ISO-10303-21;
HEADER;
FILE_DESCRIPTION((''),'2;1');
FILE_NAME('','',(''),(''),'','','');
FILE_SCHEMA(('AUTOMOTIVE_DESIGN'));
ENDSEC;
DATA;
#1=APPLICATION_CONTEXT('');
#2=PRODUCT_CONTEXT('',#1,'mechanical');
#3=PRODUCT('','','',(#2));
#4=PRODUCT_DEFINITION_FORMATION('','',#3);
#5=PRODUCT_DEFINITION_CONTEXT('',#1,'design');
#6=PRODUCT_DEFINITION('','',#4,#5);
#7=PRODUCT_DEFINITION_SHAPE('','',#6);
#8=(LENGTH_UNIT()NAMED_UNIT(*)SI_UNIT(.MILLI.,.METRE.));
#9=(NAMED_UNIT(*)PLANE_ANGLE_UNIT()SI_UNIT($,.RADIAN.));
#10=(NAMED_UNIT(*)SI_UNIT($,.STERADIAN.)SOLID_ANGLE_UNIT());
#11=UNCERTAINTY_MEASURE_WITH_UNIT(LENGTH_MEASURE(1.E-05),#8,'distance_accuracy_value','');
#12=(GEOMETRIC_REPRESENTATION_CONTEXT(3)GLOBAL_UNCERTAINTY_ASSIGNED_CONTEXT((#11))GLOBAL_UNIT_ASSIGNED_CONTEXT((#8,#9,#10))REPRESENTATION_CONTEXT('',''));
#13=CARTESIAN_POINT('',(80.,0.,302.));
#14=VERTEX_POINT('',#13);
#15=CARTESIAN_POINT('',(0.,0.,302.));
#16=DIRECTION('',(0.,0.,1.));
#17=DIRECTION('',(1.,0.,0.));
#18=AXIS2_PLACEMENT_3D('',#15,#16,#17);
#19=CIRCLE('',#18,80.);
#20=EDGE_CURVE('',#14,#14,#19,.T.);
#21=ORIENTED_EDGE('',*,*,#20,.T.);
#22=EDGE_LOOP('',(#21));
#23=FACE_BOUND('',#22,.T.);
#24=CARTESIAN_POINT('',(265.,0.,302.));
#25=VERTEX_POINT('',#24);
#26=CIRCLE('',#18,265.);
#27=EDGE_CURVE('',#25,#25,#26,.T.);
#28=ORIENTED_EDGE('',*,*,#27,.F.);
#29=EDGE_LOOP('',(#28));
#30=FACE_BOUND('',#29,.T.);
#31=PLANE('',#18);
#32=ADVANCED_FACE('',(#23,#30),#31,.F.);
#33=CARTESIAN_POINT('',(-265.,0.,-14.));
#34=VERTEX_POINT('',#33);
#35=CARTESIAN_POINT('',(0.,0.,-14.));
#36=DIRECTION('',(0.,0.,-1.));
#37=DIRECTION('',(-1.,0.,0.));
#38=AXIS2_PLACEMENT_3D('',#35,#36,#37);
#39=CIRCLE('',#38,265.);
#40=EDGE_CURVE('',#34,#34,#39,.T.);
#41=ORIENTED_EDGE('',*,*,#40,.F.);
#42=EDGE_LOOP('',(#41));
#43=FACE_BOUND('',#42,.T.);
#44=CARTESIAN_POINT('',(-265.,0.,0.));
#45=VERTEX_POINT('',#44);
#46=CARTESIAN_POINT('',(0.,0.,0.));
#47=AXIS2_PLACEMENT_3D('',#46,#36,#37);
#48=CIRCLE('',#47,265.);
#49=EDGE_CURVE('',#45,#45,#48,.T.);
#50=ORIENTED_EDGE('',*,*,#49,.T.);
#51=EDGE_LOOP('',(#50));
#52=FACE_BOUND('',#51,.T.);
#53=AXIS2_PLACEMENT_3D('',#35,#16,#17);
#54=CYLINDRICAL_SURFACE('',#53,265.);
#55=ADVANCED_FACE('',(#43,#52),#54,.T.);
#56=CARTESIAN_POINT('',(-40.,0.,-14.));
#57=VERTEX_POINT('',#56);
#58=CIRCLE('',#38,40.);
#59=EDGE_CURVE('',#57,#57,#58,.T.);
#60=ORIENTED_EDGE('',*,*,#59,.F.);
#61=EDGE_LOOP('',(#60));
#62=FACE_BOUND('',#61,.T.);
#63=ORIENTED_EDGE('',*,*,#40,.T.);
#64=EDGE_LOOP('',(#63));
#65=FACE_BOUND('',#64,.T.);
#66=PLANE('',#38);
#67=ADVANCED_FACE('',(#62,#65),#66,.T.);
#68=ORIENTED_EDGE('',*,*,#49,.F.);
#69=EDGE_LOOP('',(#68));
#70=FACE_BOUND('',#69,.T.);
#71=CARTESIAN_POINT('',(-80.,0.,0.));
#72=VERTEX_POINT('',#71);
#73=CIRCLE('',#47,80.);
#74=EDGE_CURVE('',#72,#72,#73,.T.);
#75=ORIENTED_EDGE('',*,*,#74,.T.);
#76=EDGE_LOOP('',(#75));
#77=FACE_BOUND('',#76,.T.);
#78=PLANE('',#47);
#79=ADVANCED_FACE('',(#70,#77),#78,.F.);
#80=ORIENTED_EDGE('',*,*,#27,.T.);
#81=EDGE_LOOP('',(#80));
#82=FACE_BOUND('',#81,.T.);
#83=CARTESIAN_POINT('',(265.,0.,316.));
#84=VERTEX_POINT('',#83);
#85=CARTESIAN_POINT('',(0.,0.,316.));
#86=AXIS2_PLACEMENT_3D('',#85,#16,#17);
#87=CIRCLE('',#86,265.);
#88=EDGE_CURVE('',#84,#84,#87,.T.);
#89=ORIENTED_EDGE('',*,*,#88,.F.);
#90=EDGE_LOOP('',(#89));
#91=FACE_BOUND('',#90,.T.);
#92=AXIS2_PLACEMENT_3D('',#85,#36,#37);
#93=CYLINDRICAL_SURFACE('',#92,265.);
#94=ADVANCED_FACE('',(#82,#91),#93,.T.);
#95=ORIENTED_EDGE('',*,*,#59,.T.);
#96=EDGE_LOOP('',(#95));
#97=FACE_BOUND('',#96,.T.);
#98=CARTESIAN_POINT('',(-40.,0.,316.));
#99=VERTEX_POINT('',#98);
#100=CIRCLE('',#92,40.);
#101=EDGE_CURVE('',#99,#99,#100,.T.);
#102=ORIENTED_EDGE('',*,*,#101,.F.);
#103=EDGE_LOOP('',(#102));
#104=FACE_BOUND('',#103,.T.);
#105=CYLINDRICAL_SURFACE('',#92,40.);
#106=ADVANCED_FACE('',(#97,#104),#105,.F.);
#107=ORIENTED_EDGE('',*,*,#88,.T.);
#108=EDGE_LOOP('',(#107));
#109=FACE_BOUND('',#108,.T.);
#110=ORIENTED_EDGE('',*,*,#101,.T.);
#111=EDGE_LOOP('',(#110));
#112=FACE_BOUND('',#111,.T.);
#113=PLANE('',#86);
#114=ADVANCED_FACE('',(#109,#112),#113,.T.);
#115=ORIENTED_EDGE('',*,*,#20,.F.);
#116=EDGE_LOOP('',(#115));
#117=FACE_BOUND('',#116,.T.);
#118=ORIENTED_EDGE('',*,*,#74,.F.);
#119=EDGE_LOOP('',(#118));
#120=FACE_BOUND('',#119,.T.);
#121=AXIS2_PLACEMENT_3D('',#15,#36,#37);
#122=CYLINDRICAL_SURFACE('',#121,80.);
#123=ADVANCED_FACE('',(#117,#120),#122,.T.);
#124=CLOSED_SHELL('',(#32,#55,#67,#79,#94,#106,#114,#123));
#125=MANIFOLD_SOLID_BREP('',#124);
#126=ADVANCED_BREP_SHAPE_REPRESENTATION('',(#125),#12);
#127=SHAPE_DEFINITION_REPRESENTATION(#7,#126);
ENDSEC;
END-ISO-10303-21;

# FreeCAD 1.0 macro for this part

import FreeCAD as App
import Part
import Sketcher
from FreeCAD import Vector
Q = App.Units.Quantity

doc = App.newDocument("Part")
body = doc.addObject("PartDesign::Body", "Body")

# Sketch on XY plane
sketch1 = body.newObject("Sketcher::SketchObject", "Sketch")
sketch1.AttachmentSupport = (doc.getObject("XY_Plane"), [""])
sketch1.MapMode = "FlatFace"
sketch1.addGeometry(Part.Circle(Vector(0, 0, 0), Vector(0, 0, 1), 80), False)
sketch1.addConstraint([
    Sketcher.Constraint("Coincident", 0, 3, -1, 1),
    Sketcher.Constraint("Diameter", 0, Q("160 mm")),
])
pad1 = body.newObject("PartDesign::Pad", "Pad")
pad1.Profile = sketch1
pad1.Length = 302

# Sketch on XY plane
sketch2 = body.newObject("Sketcher::SketchObject", "Sketch001")
sketch2.AttachmentSupport = (doc.getObject("XY_Plane"), [""])
sketch2.MapMode = "FlatFace"
sketch2.addGeometry(Part.Circle(Vector(0, 0, 0), Vector(0, 0, 1), 265), False)
sketch2.addConstraint([
    Sketcher.Constraint("Coincident", 0, 3, -1, 1),
    Sketcher.Constraint("Diameter", 0, Q("530 mm")),
])
pad2 = body.newObject("PartDesign::Pad", "Pad001")
pad2.Profile = sketch2
pad2.Length = 14
pad2.Reversed = True

# Sketch on XY plane
sketch3 = body.newObject("Sketcher::SketchObject", "Sketch002")
sketch3.AttachmentSupport = (doc.getObject("XY_Plane"), [""])
sketch3.MapMode = "FlatFace"
sketch3.AttachmentOffset = App.Placement(Vector(0, 0, 302), App.Rotation())
sketch3.addGeometry(Part.Circle(Vector(0, 0, 0), Vector(0, 0, 1), 265), False)
sketch3.addConstraint([
    Sketcher.Constraint("Coincident", 0, 3, -1, 1),
    Sketcher.Constraint("Diameter", 0, Q("530 mm")),
])
pad3 = body.newObject("PartDesign::Pad", "Pad002")
pad3.Profile = sketch3
pad3.Length = 14

# Sketch on XY plane
sketch4 = body.newObject("Sketcher::SketchObject", "Sketch003")
sketch4.AttachmentSupport = (doc.getObject("XY_Plane"), [""])
sketch4.MapMode = "FlatFace"
sketch4.AttachmentOffset = App.Placement(Vector(0, 0, -14), App.Rotation())
sketch4.addGeometry(Part.Circle(Vector(0, 0, 0), Vector(0, 0, 1), 40), False)
sketch4.addConstraint([
    Sketcher.Constraint("Coincident", 0, 3, -1, 1),
    Sketcher.Constraint("Diameter", 0, Q("80 mm")),
])
pocket1 = body.newObject("PartDesign::Pocket", "Pocket")
pocket1.Profile = sketch4
pocket1.Type = "ThroughAll"
pocket1.Reversed = True

doc.recompute()
